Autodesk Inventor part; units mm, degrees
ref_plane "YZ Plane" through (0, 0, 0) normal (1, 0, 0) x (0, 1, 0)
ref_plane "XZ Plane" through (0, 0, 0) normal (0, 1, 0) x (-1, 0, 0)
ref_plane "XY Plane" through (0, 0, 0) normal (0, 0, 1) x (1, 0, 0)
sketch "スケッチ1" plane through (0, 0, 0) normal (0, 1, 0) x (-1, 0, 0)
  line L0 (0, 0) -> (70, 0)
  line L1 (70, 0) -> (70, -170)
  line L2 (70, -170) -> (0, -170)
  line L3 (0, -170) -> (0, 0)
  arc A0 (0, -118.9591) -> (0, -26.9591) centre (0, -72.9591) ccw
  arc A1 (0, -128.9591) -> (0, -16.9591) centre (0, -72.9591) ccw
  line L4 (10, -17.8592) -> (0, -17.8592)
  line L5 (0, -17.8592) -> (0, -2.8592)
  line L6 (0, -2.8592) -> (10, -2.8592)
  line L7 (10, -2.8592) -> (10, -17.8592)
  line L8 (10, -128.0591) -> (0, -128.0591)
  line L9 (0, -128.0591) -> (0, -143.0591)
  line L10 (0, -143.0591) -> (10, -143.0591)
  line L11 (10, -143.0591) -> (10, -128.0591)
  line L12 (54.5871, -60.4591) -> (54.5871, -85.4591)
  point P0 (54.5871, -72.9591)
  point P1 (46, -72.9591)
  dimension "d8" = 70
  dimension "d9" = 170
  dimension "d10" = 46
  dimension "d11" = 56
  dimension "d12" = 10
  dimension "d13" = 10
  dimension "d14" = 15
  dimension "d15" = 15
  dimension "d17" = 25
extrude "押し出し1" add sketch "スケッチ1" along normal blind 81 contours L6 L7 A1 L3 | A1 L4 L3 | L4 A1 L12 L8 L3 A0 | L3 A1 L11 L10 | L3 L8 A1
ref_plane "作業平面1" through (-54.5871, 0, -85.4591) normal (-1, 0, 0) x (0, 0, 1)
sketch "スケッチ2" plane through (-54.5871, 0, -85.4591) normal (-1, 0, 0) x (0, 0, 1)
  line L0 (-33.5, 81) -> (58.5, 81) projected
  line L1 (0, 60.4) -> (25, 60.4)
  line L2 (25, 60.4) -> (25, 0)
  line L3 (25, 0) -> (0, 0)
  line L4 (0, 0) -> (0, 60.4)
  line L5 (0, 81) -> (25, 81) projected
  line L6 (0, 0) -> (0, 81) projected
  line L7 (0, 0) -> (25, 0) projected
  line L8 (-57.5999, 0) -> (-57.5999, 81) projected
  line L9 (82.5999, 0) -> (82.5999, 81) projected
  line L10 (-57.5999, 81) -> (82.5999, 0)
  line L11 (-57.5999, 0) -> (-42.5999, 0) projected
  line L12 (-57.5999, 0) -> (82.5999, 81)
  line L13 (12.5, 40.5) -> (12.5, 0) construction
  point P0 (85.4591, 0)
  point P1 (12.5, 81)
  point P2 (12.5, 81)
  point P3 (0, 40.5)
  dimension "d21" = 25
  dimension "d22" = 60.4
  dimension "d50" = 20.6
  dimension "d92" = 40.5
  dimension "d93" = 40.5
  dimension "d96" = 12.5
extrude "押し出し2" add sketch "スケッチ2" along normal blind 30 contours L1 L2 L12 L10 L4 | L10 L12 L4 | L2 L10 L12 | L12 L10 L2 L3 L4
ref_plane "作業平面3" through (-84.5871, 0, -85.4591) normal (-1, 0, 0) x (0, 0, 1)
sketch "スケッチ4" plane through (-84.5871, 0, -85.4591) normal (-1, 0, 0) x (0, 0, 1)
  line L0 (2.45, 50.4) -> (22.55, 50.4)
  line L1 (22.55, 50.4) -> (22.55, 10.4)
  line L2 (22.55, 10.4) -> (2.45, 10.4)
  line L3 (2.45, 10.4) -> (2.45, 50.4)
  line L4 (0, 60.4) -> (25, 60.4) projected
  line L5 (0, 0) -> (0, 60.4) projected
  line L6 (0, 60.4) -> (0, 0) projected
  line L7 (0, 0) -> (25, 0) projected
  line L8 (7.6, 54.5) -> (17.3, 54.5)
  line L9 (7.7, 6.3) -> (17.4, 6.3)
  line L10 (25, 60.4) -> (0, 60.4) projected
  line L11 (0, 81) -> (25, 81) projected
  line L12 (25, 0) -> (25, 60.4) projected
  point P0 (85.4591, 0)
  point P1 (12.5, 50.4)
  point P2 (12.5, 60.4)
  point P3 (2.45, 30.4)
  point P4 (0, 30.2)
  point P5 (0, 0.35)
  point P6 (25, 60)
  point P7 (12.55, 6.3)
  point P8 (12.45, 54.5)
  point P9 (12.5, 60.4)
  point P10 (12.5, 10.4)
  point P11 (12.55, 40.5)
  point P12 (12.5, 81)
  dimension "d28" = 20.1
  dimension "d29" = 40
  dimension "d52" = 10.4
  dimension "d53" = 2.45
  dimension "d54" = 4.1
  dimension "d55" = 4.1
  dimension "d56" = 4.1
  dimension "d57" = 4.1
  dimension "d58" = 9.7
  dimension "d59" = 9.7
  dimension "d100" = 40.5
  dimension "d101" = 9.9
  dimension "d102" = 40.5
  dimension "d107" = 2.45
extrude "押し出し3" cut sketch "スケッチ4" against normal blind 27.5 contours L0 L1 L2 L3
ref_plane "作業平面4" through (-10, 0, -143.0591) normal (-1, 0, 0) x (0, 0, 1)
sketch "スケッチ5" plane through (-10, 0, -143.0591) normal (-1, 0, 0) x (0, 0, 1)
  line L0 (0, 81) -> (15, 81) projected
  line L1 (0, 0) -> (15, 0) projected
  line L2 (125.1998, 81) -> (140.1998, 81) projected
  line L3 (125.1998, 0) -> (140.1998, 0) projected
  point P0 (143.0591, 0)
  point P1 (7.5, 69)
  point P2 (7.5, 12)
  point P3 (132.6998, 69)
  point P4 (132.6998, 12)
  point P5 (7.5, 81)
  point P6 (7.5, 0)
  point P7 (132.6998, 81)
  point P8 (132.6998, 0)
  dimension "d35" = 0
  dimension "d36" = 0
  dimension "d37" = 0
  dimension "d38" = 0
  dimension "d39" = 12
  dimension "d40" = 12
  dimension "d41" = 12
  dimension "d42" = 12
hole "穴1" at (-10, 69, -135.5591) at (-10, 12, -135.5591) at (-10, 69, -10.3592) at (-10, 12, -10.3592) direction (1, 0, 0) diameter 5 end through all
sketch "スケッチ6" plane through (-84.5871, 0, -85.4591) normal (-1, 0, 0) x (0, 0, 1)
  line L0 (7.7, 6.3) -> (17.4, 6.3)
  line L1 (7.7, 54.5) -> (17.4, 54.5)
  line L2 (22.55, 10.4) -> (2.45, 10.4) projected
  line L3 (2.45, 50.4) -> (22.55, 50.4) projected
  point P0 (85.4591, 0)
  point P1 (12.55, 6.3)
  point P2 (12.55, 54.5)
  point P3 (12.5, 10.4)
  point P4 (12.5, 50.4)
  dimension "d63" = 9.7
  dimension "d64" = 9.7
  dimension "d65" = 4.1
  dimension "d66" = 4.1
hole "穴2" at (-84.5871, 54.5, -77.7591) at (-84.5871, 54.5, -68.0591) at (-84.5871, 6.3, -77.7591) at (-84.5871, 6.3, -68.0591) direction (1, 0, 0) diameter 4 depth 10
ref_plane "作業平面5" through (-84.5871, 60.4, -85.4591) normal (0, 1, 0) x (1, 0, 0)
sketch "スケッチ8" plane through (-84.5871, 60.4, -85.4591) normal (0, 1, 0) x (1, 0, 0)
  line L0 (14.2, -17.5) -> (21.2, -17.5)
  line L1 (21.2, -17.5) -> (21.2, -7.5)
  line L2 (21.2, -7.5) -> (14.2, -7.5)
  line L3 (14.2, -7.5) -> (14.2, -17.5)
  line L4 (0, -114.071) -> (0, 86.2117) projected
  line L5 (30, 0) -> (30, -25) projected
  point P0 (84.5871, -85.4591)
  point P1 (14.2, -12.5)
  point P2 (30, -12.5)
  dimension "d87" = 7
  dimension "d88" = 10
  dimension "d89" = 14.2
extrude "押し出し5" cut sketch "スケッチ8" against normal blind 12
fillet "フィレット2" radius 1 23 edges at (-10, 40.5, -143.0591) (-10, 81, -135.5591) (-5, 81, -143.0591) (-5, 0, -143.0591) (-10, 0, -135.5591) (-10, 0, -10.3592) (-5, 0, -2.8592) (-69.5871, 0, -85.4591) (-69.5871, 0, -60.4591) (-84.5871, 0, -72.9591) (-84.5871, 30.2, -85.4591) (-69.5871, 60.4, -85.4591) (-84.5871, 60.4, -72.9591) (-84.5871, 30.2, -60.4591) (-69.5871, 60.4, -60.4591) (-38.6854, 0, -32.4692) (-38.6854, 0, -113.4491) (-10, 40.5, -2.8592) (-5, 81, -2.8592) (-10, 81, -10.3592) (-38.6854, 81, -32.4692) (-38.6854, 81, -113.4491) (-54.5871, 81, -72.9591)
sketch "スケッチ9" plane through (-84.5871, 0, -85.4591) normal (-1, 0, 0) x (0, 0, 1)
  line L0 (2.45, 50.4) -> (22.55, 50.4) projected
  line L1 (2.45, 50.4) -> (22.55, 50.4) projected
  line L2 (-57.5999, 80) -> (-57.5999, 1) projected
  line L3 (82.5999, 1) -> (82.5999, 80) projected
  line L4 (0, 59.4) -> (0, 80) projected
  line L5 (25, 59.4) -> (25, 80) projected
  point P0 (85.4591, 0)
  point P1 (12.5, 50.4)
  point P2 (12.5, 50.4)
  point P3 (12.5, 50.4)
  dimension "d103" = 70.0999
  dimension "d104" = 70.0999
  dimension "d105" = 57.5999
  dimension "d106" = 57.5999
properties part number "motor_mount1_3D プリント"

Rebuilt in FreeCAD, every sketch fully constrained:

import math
import FreeCAD as App
import Part
import Sketcher

V = App.Vector


def edges_at(feature, points):
    """Names of the edges that pass closest to the given points."""
    edges = feature.Shape.Edges
    near = lambda p: min(range(len(edges)), key=lambda i: edges[i].distToShape(Part.Vertex(*p))[0])
    return sorted({f"Edge{near(p) + 1}" for p in points})


def add_polygon(sketch, points):
    """Adds a closed chain of lines whose ends are joined by coincident constraints."""
    first, n = sketch.GeometryCount, len(points)
    for a, b in zip(points, points[1:] + points[:1]):
        sketch.addGeometry(Part.LineSegment(App.Vector(*a, 0), App.Vector(*b, 0)), False)
    for i in range(n):
        sketch.addConstraint(Sketcher.Constraint("Coincident", first + i, 2, first + (i + 1) % n, 1))

doc = App.newDocument("Part")
body = doc.addObject("PartDesign::Body", "Body")

# Sketch on XZ plane
sketch1 = body.newObject("Sketcher::SketchObject", "Sketch")
sketch1.AttachmentSupport = (doc.getObject("XZ_Plane"), [""])
sketch1.MapMode = "FlatFace"
sketch1.addGeometry(Part.LineSegment(V(-10, -3, 0), V(0, -3, 0)), False)
sketch1.addGeometry(Part.LineSegment(V(0, -3, 0), V(0, -27, 0)), False)
sketch1.addGeometry(Part.ArcOfCircle(Part.Circle(V(0, -73, 0), V(0, 0, 1), 46), math.radians(90), math.radians(270)), False)
sketch1.addGeometry(Part.LineSegment(V(0, -119, 0), V(0, -143, 0)), False)
sketch1.addGeometry(Part.LineSegment(V(0, -143, 0), V(-10, -143, 0)), False)
sketch1.addGeometry(Part.LineSegment(V(-10, -143, 0), V(-10, -128, 0)), False)
sketch1.addGeometry(Part.ArcOfCircle(Part.Circle(V(0, -73, 0), V(0, 0, 1), 56), math.radians(-167), math.radians(-100)), False)
sketch1.addGeometry(Part.LineSegment(V(-55, -85, 0), V(-55, -60, 0)), False)
sketch1.addGeometry(Part.ArcOfCircle(Part.Circle(V(0, -73, 0), V(0, 0, 1), 56), math.radians(100), math.radians(167)), False)
sketch1.addGeometry(Part.LineSegment(V(-10, -18, 0), V(-10, -3, 0)), False)
sketch1.addConstraint(Sketcher.Constraint("Coincident", 0, 2, 1, 1))
sketch1.addConstraint(Sketcher.Constraint("Coincident", 1, 2, 2, 1))
sketch1.addConstraint(Sketcher.Constraint("Coincident", 2, 2, 3, 1))
sketch1.addConstraint(Sketcher.Constraint("Coincident", 3, 2, 4, 1))
sketch1.addConstraint(Sketcher.Constraint("Coincident", 4, 2, 5, 1))
sketch1.addConstraint(Sketcher.Constraint("Coincident", 5, 2, 6, 2))
sketch1.addConstraint(Sketcher.Constraint("Coincident", 6, 1, 7, 1))
sketch1.addConstraint(Sketcher.Constraint("Coincident", 7, 2, 8, 2))
sketch1.addConstraint(Sketcher.Constraint("Coincident", 8, 1, 9, 1))
sketch1.addConstraint(Sketcher.Constraint("Coincident", 9, 2, 0, 1))
sketch1.addConstraint(Sketcher.Constraint("Horizontal", 0))
sketch1.addConstraint(Sketcher.Constraint("Vertical", 1))
sketch1.addConstraint(Sketcher.Constraint("Vertical", 3))
sketch1.addConstraint(Sketcher.Constraint("Horizontal", 4))
sketch1.addConstraint(Sketcher.Constraint("Vertical", 5))
sketch1.addConstraint(Sketcher.Constraint("Vertical", 7))
sketch1.addConstraint(Sketcher.Constraint("Vertical", 9))
sketch1.addConstraint(Sketcher.Constraint("Coincident", 6, 3, 2, 3))
sketch1.addConstraint(Sketcher.Constraint("Coincident", 8, 3, 2, 3))
sketch1.addConstraint(Sketcher.Constraint("Equal", 6, 8))
sketch1.addConstraint(Sketcher.Constraint("PointOnObject", 2, 3, -2))
sketch1.addConstraint(Sketcher.Constraint("PointOnObject", 0, 2, -2))
sketch1.addConstraint(Sketcher.Constraint("PointOnObject", 2, 2, -2))
sketch1.addConstraint(Sketcher.Constraint("Vertical", 5, 2, 8, 1))
sketch1.addConstraint(Sketcher.Constraint("Equal", 1, 3))
sketch1.addConstraint(Sketcher.Constraint("Radius", 2, 46.0))
sketch1.addConstraint(Sketcher.Constraint("Radius", 6, 56.0))
sketch1.addConstraint(Sketcher.Constraint("DistanceX", 0, 1, 0, 2, 10.0))
sketch1.addConstraint(Sketcher.Constraint("DistanceY", 5, 1, 5, 2, 15.0))
sketch1.addConstraint(Sketcher.Constraint("DistanceY", 7, 1, 7, 2, 25.0))
sketch1.addConstraint(Sketcher.Constraint("DistanceY", 2, 3, -1, 1, 72.959))
pad1 = body.newObject("PartDesign::Pad", "Pad")
pad1.Profile = sketch1
pad1.Length = 81
pad1.Reversed = True

# Sketch on YZ plane
sketch2 = body.newObject("Sketcher::SketchObject", "Sketch001")
sketch2.AttachmentSupport = (doc.getObject("YZ_Plane"), [""])
sketch2.MapMode = "FlatFace"
sketch2.AttachmentOffset = App.Placement(V(0, 0, -54.5871), App.Rotation())
add_polygon(sketch2, [(60, -60), (60, -85), (0, -85), (0, -60)])  # lines 0-3
sketch2.addConstraint(Sketcher.Constraint("Vertical", 0))
sketch2.addConstraint(Sketcher.Constraint("Horizontal", 1))
sketch2.addConstraint(Sketcher.Constraint("Vertical", 2))
sketch2.addConstraint(Sketcher.Constraint("Horizontal", 3))
sketch2.addConstraint(Sketcher.Constraint("PointOnObject", 1, 2, -2))
sketch2.addConstraint(Sketcher.Constraint("DistanceY", 0, 2, 0, 1, 25.0))
sketch2.addConstraint(Sketcher.Constraint("DistanceX", 1, 2, 1, 1, 60.4))
sketch2.addConstraint(Sketcher.Constraint("DistanceY", 0, 2, -1, 1, 85.459))
pad2 = body.newObject("PartDesign::Pad", "Pad001")
pad2.Profile = sketch2
pad2.Length = 30
pad2.Reversed = True

# Sketch on YZ plane
sketch3 = body.newObject("Sketcher::SketchObject", "Sketch002")
sketch3.AttachmentSupport = (doc.getObject("YZ_Plane"), [""])
sketch3.MapMode = "FlatFace"
sketch3.AttachmentOffset = App.Placement(V(0, 0, -84.5871), App.Rotation())
add_polygon(sketch3, [(50, -63), (50, -83), (10, -83), (10, -63)])  # lines 0-3
sketch3.addConstraint(Sketcher.Constraint("Vertical", 0))
sketch3.addConstraint(Sketcher.Constraint("Horizontal", 1))
sketch3.addConstraint(Sketcher.Constraint("Vertical", 2))
sketch3.addConstraint(Sketcher.Constraint("Horizontal", 3))
sketch3.addConstraint(Sketcher.Constraint("DistanceX", 1, 2, 1, 1, 40.0))
sketch3.addConstraint(Sketcher.Constraint("DistanceY", 0, 2, 0, 1, 20.1))
sketch3.addConstraint(Sketcher.Constraint("DistanceX", -1, 1, 1, 2, 10.4))
sketch3.addConstraint(Sketcher.Constraint("DistanceY", 0, 2, -1, 1, 83.009))
pocket1 = body.newObject("PartDesign::Pocket", "Pocket")
pocket1.Profile = sketch3
pocket1.Length = 27.5
pocket1.Reversed = True

# Sketch on YZ plane
sketch4 = body.newObject("Sketcher::SketchObject", "Sketch003")
sketch4.AttachmentSupport = (doc.getObject("YZ_Plane"), [""])
sketch4.MapMode = "FlatFace"
sketch4.AttachmentOffset = App.Placement(V(0, 0, -10), App.Rotation())
sketch4.addGeometry(Part.Circle(V(69, -135.6, 0), V(0, 0, 1), 2.5), False)
sketch4.addGeometry(Part.Circle(V(12, -135.6, 0), V(0, 0, 1), 2.5), False)
sketch4.addGeometry(Part.Circle(V(69, -10.4, 0), V(0, 0, 1), 2.5), False)
sketch4.addGeometry(Part.Circle(V(12, -10.4, 0), V(0, 0, 1), 2.5), False)
sketch4.addConstraint(Sketcher.Constraint("Equal", 0, 1))
sketch4.addConstraint(Sketcher.Constraint("Equal", 1, 2))
sketch4.addConstraint(Sketcher.Constraint("Equal", 2, 3))
sketch4.addConstraint(Sketcher.Constraint("Horizontal", 0, 3, 1, 3))
sketch4.addConstraint(Sketcher.Constraint("Horizontal", 2, 3, 3, 3))
sketch4.addConstraint(Sketcher.Constraint("Vertical", 0, 3, 2, 3))
sketch4.addConstraint(Sketcher.Constraint("Vertical", 1, 3, 3, 3))
sketch4.addConstraint(Sketcher.Constraint("Diameter", 0, 5.0))
sketch4.addConstraint(Sketcher.Constraint("DistanceX", -1, 1, 0, 3, 69.0))
sketch4.addConstraint(Sketcher.Constraint("DistanceX", -1, 1, 1, 3, 12.0))
sketch4.addConstraint(Sketcher.Constraint("DistanceY", 0, 3, 2, 3, 125.2))
sketch4.addConstraint(Sketcher.Constraint("DistanceY", 0, 3, -1, 1, 135.559))
doc.recompute()
hole = body.newObject("PartDesign::Hole", "Hole")
hole.Profile = sketch4
hole.ThreadType = "None"
hole.Diameter = 5
hole.DepthType = "ThroughAll"
hole.Reversed = True

# Sketch on YZ plane
sketch5 = body.newObject("Sketcher::SketchObject", "Sketch004")
sketch5.AttachmentSupport = (doc.getObject("YZ_Plane"), [""])
sketch5.MapMode = "FlatFace"
sketch5.AttachmentOffset = App.Placement(V(0, 0, -84.5871), App.Rotation())
sketch5.addGeometry(Part.Circle(V(54.5, -77.8, 0), V(0, 0, 1), 2), False)
sketch5.addGeometry(Part.Circle(V(54.5, -68.1, 0), V(0, 0, 1), 2), False)
sketch5.addGeometry(Part.Circle(V(6.3, -77.8, 0), V(0, 0, 1), 2), False)
sketch5.addGeometry(Part.Circle(V(6.3, -68.1, 0), V(0, 0, 1), 2), False)
sketch5.addConstraint(Sketcher.Constraint("Equal", 0, 1))
sketch5.addConstraint(Sketcher.Constraint("Equal", 1, 2))
sketch5.addConstraint(Sketcher.Constraint("Equal", 2, 3))
sketch5.addConstraint(Sketcher.Constraint("Horizontal", 0, 3, 2, 3))
sketch5.addConstraint(Sketcher.Constraint("Horizontal", 1, 3, 3, 3))
sketch5.addConstraint(Sketcher.Constraint("Vertical", 0, 3, 1, 3))
sketch5.addConstraint(Sketcher.Constraint("Vertical", 2, 3, 3, 3))
sketch5.addConstraint(Sketcher.Constraint("Diameter", 0, 4.0))
sketch5.addConstraint(Sketcher.Constraint("DistanceX", -1, 1, 0, 3, 54.5))
sketch5.addConstraint(Sketcher.Constraint("DistanceX", -1, 1, 2, 3, 6.3))
sketch5.addConstraint(Sketcher.Constraint("DistanceY", 0, 3, 1, 3, 9.7))
sketch5.addConstraint(Sketcher.Constraint("DistanceY", 0, 3, -1, 1, 77.759))
doc.recompute()
hole2 = body.newObject("PartDesign::Hole", "Hole001")
hole2.Profile = sketch5
hole2.ThreadType = "None"
hole2.Diameter = 4
hole2.DepthType = "Dimension"
hole2.Depth = 10
hole2.DrillPoint = "Flat"
hole2.Reversed = True

# Sketch on XZ plane
sketch6 = body.newObject("Sketcher::SketchObject", "Sketch005")
sketch6.AttachmentSupport = (doc.getObject("XZ_Plane"), [""])
sketch6.MapMode = "FlatFace"
sketch6.AttachmentOffset = App.Placement(V(0, 0, -60.4), App.Rotation())
add_polygon(sketch6, [(-70, -78), (-70, -68), (-63, -68), (-63, -78)])  # lines 0-3
sketch6.addConstraint(Sketcher.Constraint("Vertical", 0))
sketch6.addConstraint(Sketcher.Constraint("Horizontal", 1))
sketch6.addConstraint(Sketcher.Constraint("Vertical", 2))
sketch6.addConstraint(Sketcher.Constraint("Horizontal", 3))
sketch6.addConstraint(Sketcher.Constraint("DistanceX", 1, 1, 1, 2, 7.0))
sketch6.addConstraint(Sketcher.Constraint("DistanceY", 0, 1, 0, 2, 10.0))
sketch6.addConstraint(Sketcher.Constraint("DistanceX", 0, 2, -1, 1, 70.387))
sketch6.addConstraint(Sketcher.Constraint("DistanceY", 0, 2, -1, 1, 67.959))
pocket2 = body.newObject("PartDesign::Pocket", "Pocket001")
pocket2.Profile = sketch6
pocket2.Length = 12
pocket2.Reversed = True
doc.recompute()

fillet = body.newObject("PartDesign::Fillet", "Fillet")
fillet.Base = (pocket2, edges_at(pocket2, [
    (-10, 40.5, -143.059),
    (-10, 81, -135.559),
    (-5, 81, -143.059),
    (-5, 0, -143.059),
    (-10, 0, -135.559),
    (-10, 0, -10.359),
    (-5, 0, -2.859),
    (-69.587, 0, -85.459),
    (-69.587, 0, -60.459),
    (-84.587, 0, -72.959),
    (-84.587, 30.2, -85.459),
    (-69.587, 60.4, -85.459),
    (-84.587, 60.4, -72.959),
    (-84.587, 30.2, -60.459),
    (-69.587, 60.4, -60.459),
    (-38.685, 0, -32.469),
    (-38.685, 0, -113.449),
    (-10, 40.5, -2.859),
    (-5, 81, -2.859),
    (-10, 81, -10.359),
    (-38.685, 81, -32.469),
    (-38.685, 81, -113.449),
    (-54.587, 81, -72.959),
]))
fillet.Radius = 1

doc.recompute()
